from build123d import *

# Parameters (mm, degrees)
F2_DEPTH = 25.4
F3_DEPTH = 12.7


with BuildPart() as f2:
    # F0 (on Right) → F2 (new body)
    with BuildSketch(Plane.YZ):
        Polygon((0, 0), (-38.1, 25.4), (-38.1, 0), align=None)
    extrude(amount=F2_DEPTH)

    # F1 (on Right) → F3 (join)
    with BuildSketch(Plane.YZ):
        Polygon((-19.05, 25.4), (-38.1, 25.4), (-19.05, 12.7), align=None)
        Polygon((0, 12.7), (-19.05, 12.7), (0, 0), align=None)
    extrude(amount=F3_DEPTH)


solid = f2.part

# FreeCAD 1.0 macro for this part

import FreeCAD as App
import Part
import Sketcher
Q = App.Units.Quantity

doc = App.newDocument("Part")
params = doc.addObject("Spreadsheet::Sheet", "Params")
for row, (alias, value) in enumerate([
    ("sketch1_height", "1 in"),
    ("sketch1_width", "1.5 in"),
    ("pad1_length", "1 in"),
    ("sketch2_height", "0.5 in"),
    ("sketch2_width", "0.75 in"),
    ("pad2_length", "0.5 in"),
], start=1):
    params.set(f"A{row}", alias)
    params.set(f"B{row}", "=" + value)
    params.setAlias(f"B{row}", alias)

body = doc.addObject("PartDesign::Body", "Body")

sketch1 = doc.addObject("Sketcher::SketchObject", "Sketch")
body.addObject(sketch1)
sketch1.AttachmentSupport = (doc.YZ_Plane, [""])
sketch1.MapMode = "FlatFace"
sketch1.addGeometry([
    Part.LineSegment(App.Vector(0, 0, 0), App.Vector(-38, 25, 0)),
    Part.LineSegment(App.Vector(-38, 25, 0), App.Vector(-38, 0, 0)),
    Part.LineSegment(App.Vector(-38, 0, 0), App.Vector(0, 0, 0)),
], False)
sketch1.addConstraint([
    Sketcher.Constraint("Coincident", 0, 2, 1, 1),
    Sketcher.Constraint("Coincident", 1, 2, 2, 1),
    Sketcher.Constraint("Coincident", 2, 2, 0, 1),
    Sketcher.Constraint("Vertical", 1),
    Sketcher.Constraint("Horizontal", 2),
    Sketcher.Constraint("Coincident", 2, 2, -1, 1),
    Sketcher.Constraint("DistanceY", 1, 2, 1, 1, Q("1 in")),
    Sketcher.Constraint("DistanceX", 2, 1, 2, 2, Q("1.5 in")),
])
sketch1.setExpression("Constraints[6]", "Params.sketch1_height")
sketch1.setExpression("Constraints[7]", "Params.sketch1_width")
pad1 = doc.addObject("PartDesign::Pad", "Pad")
body.addObject(pad1)
pad1.Profile = sketch1
pad1.setExpression("Length", "Params.pad1_length")

sketch2 = doc.addObject("Sketcher::SketchObject", "Sketch001")
body.addObject(sketch2)
sketch2.AttachmentSupport = (doc.YZ_Plane, [""])
sketch2.MapMode = "FlatFace"
sketch2.addGeometry([
    Part.LineSegment(App.Vector(-19, 25, 0), App.Vector(-38, 25, 0)),
    Part.LineSegment(App.Vector(-38, 25, 0), App.Vector(-19, 13, 0)),
    Part.LineSegment(App.Vector(-19, 13, 0), App.Vector(-19, 25, 0)),
    Part.LineSegment(App.Vector(0, 13, 0), App.Vector(-19, 13, 0)),
    Part.LineSegment(App.Vector(-19, 13, 0), App.Vector(0, 0, 0)),
    Part.LineSegment(App.Vector(0, 0, 0), App.Vector(0, 13, 0)),
], False)
sketch2.addConstraint([
    Sketcher.Constraint("Coincident", 0, 2, 1, 1),
    Sketcher.Constraint("Coincident", 1, 2, 2, 1),
    Sketcher.Constraint("Coincident", 2, 2, 0, 1),
    Sketcher.Constraint("Coincident", 3, 2, 4, 1),
    Sketcher.Constraint("Coincident", 4, 2, 5, 1),
    Sketcher.Constraint("Coincident", 5, 2, 3, 1),
    Sketcher.Constraint("Horizontal", 0),
    Sketcher.Constraint("Vertical", 2),
    Sketcher.Constraint("Horizontal", 3),
    Sketcher.Constraint("Vertical", 5),
    Sketcher.Constraint("Coincident", 4, 2, -1, 1),
    Sketcher.Constraint("Coincident", 3, 2, 1, 2),
    Sketcher.Constraint("Parallel", 1, 4),
    Sketcher.Constraint("Equal", 0, 3),
    Sketcher.Constraint("DistanceY", 2, 1, 2, 2, Q("0.5 in")),
    Sketcher.Constraint("DistanceX", 0, 2, 0, 1, Q("0.75 in")),
])
sketch2.setExpression("Constraints[14]", "Params.sketch2_height")
sketch2.setExpression("Constraints[15]", "Params.sketch2_width")
pad2 = doc.addObject("PartDesign::Pad", "Pad001")
body.addObject(pad2)
pad2.Profile = sketch2
pad2.setExpression("Length", "Params.pad2_length")

doc.recompute()
